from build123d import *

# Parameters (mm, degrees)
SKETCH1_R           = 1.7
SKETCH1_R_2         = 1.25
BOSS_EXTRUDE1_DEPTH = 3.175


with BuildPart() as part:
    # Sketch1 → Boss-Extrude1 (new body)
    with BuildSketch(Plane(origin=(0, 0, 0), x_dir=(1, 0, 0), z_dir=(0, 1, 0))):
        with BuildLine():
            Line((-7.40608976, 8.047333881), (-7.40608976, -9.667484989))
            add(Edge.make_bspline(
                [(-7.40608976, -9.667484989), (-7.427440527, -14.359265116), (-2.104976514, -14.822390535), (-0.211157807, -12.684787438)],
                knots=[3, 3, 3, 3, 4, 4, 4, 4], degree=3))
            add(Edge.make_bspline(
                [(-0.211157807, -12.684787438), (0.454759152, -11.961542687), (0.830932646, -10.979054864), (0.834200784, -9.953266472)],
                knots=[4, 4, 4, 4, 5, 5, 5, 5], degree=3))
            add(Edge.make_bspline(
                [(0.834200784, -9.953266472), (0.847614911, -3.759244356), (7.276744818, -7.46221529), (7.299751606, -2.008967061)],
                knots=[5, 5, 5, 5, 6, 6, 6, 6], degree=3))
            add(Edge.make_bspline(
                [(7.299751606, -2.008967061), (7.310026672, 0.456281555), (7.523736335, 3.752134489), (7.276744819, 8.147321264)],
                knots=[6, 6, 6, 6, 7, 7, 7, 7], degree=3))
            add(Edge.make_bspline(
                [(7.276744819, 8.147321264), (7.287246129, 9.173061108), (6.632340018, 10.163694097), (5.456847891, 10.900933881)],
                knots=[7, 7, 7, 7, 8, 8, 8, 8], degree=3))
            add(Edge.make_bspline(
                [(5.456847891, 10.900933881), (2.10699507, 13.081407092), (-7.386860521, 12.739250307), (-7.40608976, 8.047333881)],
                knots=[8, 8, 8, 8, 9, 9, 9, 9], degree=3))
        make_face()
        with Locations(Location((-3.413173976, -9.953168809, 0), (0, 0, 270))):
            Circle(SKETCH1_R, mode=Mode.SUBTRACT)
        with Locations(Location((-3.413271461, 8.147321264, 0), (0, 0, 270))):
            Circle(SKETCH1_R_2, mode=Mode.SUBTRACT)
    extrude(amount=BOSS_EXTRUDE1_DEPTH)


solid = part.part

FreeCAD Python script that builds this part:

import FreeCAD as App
import Part
import Sketcher

V = App.Vector
Q = App.Units.Quantity

doc = App.newDocument("Part")
body = doc.addObject("PartDesign::Body", "Body")

sketch1 = body.newObject("Sketcher::SketchObject", "Sketch")
sketch1.AttachmentSupport = (doc.getObject("XZ_Plane"), [""])
sketch1.MapMode = "FlatFace"
sketch1.addGeometry([
    Part.LineSegment(V(-7.40609, -8.047334, 0), V(-7.40609, 9.667485, 0)),
    Part.BSplineCurve([V(-7.40609, 9.667485, 0), V(-7.427441, 14.359265, 0), V(-2.104977, 14.822391, 0), V(-0.211158, 12.684787, 0)], [4, 4], [3, 4], False, 3, [1, 1, 1, 1], False),
    Part.BSplineCurve([V(-0.211158, 12.684787, 0), V(0.454759, 11.961543, 0), V(0.830933, 10.979055, 0), V(0.834201, 9.953266, 0)], [4, 4], [4, 5], False, 3, [1, 1, 1, 1], False),
    Part.BSplineCurve([V(0.834201, 9.953266, 0), V(0.847615, 3.759244, 0), V(7.276745, 7.462215, 0), V(7.299752, 2.008967, 0)], [4, 4], [5, 6], False, 3, [1, 1, 1, 1], False),
    Part.BSplineCurve([V(7.299752, 2.008967, 0), V(7.310027, -0.456282, 0), V(7.523736, -3.752134, 0), V(7.276745, -8.147321, 0)], [4, 4], [6, 7], False, 3, [1, 1, 1, 1], False),
    Part.BSplineCurve([V(7.276745, -8.147321, 0), V(7.287246, -9.173061, 0), V(6.63234, -10.163694, 0), V(5.456848, -10.900934, 0)], [4, 4], [7, 8], False, 3, [1, 1, 1, 1], False),
    Part.BSplineCurve([V(5.456848, -10.900934, 0), V(2.106995, -13.081407, 0), V(-7.386861, -12.73925, 0), V(-7.40609, -8.047334, 0)], [4, 4], [8, 9], False, 3, [1, 1, 1, 1], False),
    Part.Circle(V(-3.413174, 9.953169, 0), V(0, 0, 1), 1.7),
    Part.Circle(V(-3.413271, -8.147321, 0), V(0, 0, 1), 1.25),
], False)
sketch1.addConstraint([
    Sketcher.Constraint("Block", 1),
    Sketcher.Constraint("Block", 2),
    Sketcher.Constraint("Block", 3),
    Sketcher.Constraint("Block", 4),
    Sketcher.Constraint("Block", 5),
    Sketcher.Constraint("Block", 6),
    Sketcher.Constraint("Coincident", 0, 2, 1, 1),
    Sketcher.Constraint("Coincident", 6, 2, 0, 1),
    Sketcher.Constraint("Diameter", 7, Q("3.4 mm")),
    Sketcher.Constraint("Diameter", 8, Q("2.5 mm")),
    Sketcher.Constraint("DistanceY", -1, 1, 7, 3, Q("9.953169 mm")),
    Sketcher.Constraint("DistanceX", 8, 3, -1, 1, Q("3.413271 mm")),
    Sketcher.Constraint("DistanceY", 8, 3, -1, 1, Q("8.147321 mm")),
    Sketcher.Constraint("DistanceX", 7, 3, -1, 1, Q("3.413174 mm")),
])
pad1 = body.newObject("PartDesign::Pad", "Pad")
pad1.Profile = sketch1
pad1.Length = 3.175
pad1.Reversed = True

doc.recompute()
